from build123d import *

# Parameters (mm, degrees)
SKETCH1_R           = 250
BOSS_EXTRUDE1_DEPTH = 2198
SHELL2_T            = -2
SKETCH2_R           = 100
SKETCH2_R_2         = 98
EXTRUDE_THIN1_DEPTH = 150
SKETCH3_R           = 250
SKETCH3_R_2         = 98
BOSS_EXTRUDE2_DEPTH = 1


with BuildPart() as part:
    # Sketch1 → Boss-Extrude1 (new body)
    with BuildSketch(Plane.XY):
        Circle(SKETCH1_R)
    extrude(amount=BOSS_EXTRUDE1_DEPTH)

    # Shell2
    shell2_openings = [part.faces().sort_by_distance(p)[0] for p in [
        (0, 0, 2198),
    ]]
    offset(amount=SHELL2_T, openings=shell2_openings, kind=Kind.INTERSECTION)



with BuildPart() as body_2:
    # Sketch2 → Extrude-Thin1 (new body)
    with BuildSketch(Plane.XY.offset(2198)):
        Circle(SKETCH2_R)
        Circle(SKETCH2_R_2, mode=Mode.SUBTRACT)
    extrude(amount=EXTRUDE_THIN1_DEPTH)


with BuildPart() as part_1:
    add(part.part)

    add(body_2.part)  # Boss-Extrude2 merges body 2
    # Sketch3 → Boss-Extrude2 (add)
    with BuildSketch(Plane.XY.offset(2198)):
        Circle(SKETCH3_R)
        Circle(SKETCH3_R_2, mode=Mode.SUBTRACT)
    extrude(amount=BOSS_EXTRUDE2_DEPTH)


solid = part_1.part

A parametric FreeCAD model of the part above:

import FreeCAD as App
import Part
import Sketcher
from FreeCAD import Vector


def faces_at(feature, points):
    """Names of the faces that lie closest to the given points."""
    faces = feature.Shape.Faces
    near = lambda p: min(range(len(faces)), key=lambda i: faces[i].distToShape(Part.Vertex(*p))[0])
    return sorted({f"Face{near(p) + 1}" for p in points})

doc = App.newDocument("Part")
body = doc.addObject("PartDesign::Body", "Body")

sketch1 = body.newObject("Sketcher::SketchObject", "Sketch")
sketch1.AttachmentSupport = (doc.getObject("XY_Plane"), [""])
sketch1.MapMode = "FlatFace"
sketch1.addGeometry(Part.Circle(Vector(0, 0, 0), Vector(0, 0, 1), 250), False)
sketch1.addConstraint([
    Sketcher.Constraint("Coincident", 0, 3, -1, 1),
    Sketcher.Constraint("Diameter", 0, 500.0),
])
pad1 = body.newObject("PartDesign::Pad", "Pad")
pad1.Profile = sketch1
pad1.Length = 2198
doc.recompute()

thickness = body.newObject("PartDesign::Thickness", "Thickness")
thickness.Base = (pad1, faces_at(pad1, [(0, 0, 2198)]))
thickness.Value = 2
thickness.Reversed = True
thickness.Join = "Intersection"
body2 = doc.addObject("PartDesign::Body", "Body001")

sketch2 = body2.newObject("Sketcher::SketchObject", "Sketch001")
sketch2.AttachmentSupport = (doc.getObject("XY_Plane001"), [""])
sketch2.MapMode = "FlatFace"
sketch2.AttachmentOffset = App.Placement(Vector(0, 0, 2198), App.Rotation())
sketch2.addGeometry([
    Part.Circle(Vector(0, 0, 0), Vector(0, 0, 1), 100),
    Part.Circle(Vector(0, 0, 0), Vector(0, 0, 1), 98),
], False)
sketch2.addConstraint([
    Sketcher.Constraint("Coincident", 0, 3, -1, 1),
    Sketcher.Constraint("Coincident", 1, 3, -1, 1),
    Sketcher.Constraint("Diameter", 0, 200.0),
    Sketcher.Constraint("Diameter", 1, 196.0),
])
pad2 = body2.newObject("PartDesign::Pad", "Pad001")
pad2.Profile = sketch2
pad2.Length = 150
body.AllowCompound = True
doc.recompute()

boolean = body.newObject("PartDesign::Boolean", "Boolean")
boolean.Type = "Fuse"
boolean.addObjects([body2])

sketch3 = body.newObject("Sketcher::SketchObject", "Sketch002")
sketch3.AttachmentSupport = (doc.getObject("XY_Plane"), [""])
sketch3.MapMode = "FlatFace"
sketch3.AttachmentOffset = App.Placement(Vector(0, 0, 2198), App.Rotation())
sketch3.addGeometry([
    Part.Circle(Vector(0, 0, 0), Vector(0, 0, 1), 250),
    Part.Circle(Vector(0, 0, 0), Vector(0, 0, 1), 98),
], False)
sketch3.addConstraint([
    Sketcher.Constraint("Coincident", 0, 3, -1, 1),
    Sketcher.Constraint("Coincident", 1, 3, -1, 1),
    Sketcher.Constraint("Diameter", 0, 500.0),
    Sketcher.Constraint("Diameter", 1, 196.0),
])
pad3 = body.newObject("PartDesign::Pad", "Pad002")
pad3.Profile = sketch3
pad3.Length = 1

doc.recompute()
